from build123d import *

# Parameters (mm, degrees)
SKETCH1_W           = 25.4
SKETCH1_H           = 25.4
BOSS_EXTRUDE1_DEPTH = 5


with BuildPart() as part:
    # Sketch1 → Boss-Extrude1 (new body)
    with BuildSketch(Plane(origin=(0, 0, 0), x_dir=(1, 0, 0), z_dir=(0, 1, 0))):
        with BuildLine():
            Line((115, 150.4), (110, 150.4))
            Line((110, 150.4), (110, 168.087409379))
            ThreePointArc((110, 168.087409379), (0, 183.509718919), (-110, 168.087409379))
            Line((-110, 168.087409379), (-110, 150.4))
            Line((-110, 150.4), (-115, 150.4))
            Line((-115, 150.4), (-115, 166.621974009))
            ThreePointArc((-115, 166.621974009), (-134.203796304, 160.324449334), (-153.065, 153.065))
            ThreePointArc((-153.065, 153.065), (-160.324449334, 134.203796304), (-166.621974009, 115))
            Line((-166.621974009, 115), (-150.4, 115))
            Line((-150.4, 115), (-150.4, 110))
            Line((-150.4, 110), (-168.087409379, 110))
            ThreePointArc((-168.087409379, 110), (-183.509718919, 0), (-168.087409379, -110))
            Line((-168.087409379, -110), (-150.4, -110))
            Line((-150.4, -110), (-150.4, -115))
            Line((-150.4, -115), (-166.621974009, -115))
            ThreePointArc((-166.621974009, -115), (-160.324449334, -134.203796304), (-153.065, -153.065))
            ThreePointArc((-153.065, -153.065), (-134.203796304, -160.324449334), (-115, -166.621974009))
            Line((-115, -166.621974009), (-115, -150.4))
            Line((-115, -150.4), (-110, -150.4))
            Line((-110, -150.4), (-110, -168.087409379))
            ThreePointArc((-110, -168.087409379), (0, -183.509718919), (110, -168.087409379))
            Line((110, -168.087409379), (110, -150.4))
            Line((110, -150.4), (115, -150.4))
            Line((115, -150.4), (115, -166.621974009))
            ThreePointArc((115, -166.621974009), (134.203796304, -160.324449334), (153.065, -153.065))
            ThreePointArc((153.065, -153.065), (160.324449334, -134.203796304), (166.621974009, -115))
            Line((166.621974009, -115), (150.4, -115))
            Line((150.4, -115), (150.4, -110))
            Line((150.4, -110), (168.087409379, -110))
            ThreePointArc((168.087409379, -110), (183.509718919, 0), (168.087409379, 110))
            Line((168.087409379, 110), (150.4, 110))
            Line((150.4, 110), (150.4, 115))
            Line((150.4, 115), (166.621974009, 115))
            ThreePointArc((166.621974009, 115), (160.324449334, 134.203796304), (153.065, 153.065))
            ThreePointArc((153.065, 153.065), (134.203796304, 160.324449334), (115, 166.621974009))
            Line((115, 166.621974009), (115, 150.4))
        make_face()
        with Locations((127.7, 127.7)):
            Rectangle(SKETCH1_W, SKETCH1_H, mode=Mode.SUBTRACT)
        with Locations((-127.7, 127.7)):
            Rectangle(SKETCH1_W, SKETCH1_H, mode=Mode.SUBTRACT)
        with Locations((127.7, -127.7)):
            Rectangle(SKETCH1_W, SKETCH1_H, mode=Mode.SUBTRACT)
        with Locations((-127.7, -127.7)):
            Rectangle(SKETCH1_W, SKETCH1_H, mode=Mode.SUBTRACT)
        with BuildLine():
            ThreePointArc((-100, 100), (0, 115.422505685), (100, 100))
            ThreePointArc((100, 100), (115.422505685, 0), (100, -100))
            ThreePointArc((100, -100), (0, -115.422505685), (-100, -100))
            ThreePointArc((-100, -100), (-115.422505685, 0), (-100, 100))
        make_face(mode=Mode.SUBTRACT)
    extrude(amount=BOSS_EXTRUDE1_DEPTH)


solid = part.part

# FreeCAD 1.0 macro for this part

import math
import FreeCAD as App
import Part
import Sketcher

V = App.Vector

doc = App.newDocument("Part")
body = doc.addObject("PartDesign::Body", "Body")

sketch1 = body.newObject("Sketcher::SketchObject", "Sketch")
sketch1.AttachmentSupport = (doc.getObject("XZ_Plane"), [""])
sketch1.MapMode = "FlatFace"
sketch1.addGeometry([
    Part.LineSegment(V(115, -150, 0), V(110, -150, 0)),
    Part.LineSegment(V(110, -150, 0), V(110, -168, 0)),
    Part.ArcOfCircle(Part.Circle(V(0, 216, 0), V(0, 0, 1), 400), math.radians(-106), math.radians(-74)),
    Part.LineSegment(V(-110, -168, 0), V(-110, -150, 0)),
    Part.LineSegment(V(-110, -150, 0), V(-115, -150, 0)),
    Part.LineSegment(V(-115, -150, 0), V(-115, -167, 0)),
    Part.ArcOfCircle(Part.Circle(V(0, 216, 0), V(0, 0, 1), 400), math.radians(-112.5), math.radians(-106.71)),
    Part.ArcOfCircle(Part.Circle(V(216, 0, 0), V(0, 0, 1), 400), math.radians(-163.29), math.radians(-157.5)),
    Part.LineSegment(V(-167, -115, 0), V(-150, -115, 0)),
    Part.LineSegment(V(-150, -115, 0), V(-150, -110, 0)),
    Part.LineSegment(V(-150, -110, 0), V(-168, -110, 0)),
    Part.ArcOfCircle(Part.Circle(V(216, 0, 0), V(0, 0, 1), 400), math.radians(164), math.radians(196)),
    Part.LineSegment(V(-168, 110, 0), V(-150, 110, 0)),
    Part.LineSegment(V(-150, 110, 0), V(-150, 115, 0)),
    Part.LineSegment(V(-150, 115, 0), V(-167, 115, 0)),
    Part.ArcOfCircle(Part.Circle(V(216, 0, 0), V(0, 0, 1), 400), math.radians(157.5), math.radians(163.29)),
    Part.ArcOfCircle(Part.Circle(V(0, -216, 0), V(0, 0, 1), 400), math.radians(106.71), math.radians(112.5)),
    Part.LineSegment(V(-115, 167, 0), V(-115, 150, 0)),
    Part.LineSegment(V(-115, 150, 0), V(-110, 150, 0)),
    Part.LineSegment(V(-110, 150, 0), V(-110, 168, 0)),
    Part.ArcOfCircle(Part.Circle(V(0, -216, 0), V(0, 0, 1), 400), math.radians(74), math.radians(106)),
    Part.LineSegment(V(110, 168, 0), V(110, 150, 0)),
    Part.LineSegment(V(110, 150, 0), V(115, 150, 0)),
    Part.LineSegment(V(115, 150, 0), V(115, 167, 0)),
    Part.ArcOfCircle(Part.Circle(V(0, -216, 0), V(0, 0, 1), 400), math.radians(67.5), math.radians(73.29)),
    Part.ArcOfCircle(Part.Circle(V(-216, 0, 0), V(0, 0, 1), 400), math.radians(16.71), math.radians(22.5)),
    Part.LineSegment(V(167, 115, 0), V(150, 115, 0)),
    Part.LineSegment(V(150, 115, 0), V(150, 110, 0)),
    Part.LineSegment(V(150, 110, 0), V(168, 110, 0)),
    Part.ArcOfCircle(Part.Circle(V(-216, 0, 0), V(0, 0, 1), 400), math.radians(-16), math.radians(16)),
    Part.LineSegment(V(168, -110, 0), V(150, -110, 0)),
    Part.LineSegment(V(150, -110, 0), V(150, -115, 0)),
    Part.LineSegment(V(150, -115, 0), V(167, -115, 0)),
    Part.ArcOfCircle(Part.Circle(V(-216, 0, 0), V(0, 0, 1), 400), math.radians(-22.5), math.radians(-16.71)),
    Part.ArcOfCircle(Part.Circle(V(0, 216, 0), V(0, 0, 1), 400), math.radians(-73.29), math.radians(-67.5)),
    Part.LineSegment(V(115, -167, 0), V(115, -150, 0)),
    Part.LineSegment(V(-115, 140, 0), V(-140, 140, 0)),
    Part.LineSegment(V(-140, 140, 0), V(-140, 115, 0)),
    Part.LineSegment(V(-140, 115, 0), V(-115, 115, 0)),
    Part.LineSegment(V(-115, 115, 0), V(-115, 140, 0)),
    Part.LineSegment(V(140, 140, 0), V(115, 140, 0)),
    Part.LineSegment(V(115, 140, 0), V(115, 115, 0)),
    Part.LineSegment(V(115, 115, 0), V(140, 115, 0)),
    Part.LineSegment(V(140, 115, 0), V(140, 140, 0)),
    Part.LineSegment(V(-115, -115, 0), V(-140, -115, 0)),
    Part.LineSegment(V(-140, -115, 0), V(-140, -140, 0)),
    Part.LineSegment(V(-140, -140, 0), V(-115, -140, 0)),
    Part.LineSegment(V(-115, -140, 0), V(-115, -115, 0)),
    Part.ArcOfCircle(Part.Circle(V(216, 0, 0), V(0, 0, 1), 332), math.radians(162), math.radians(198)),
    Part.ArcOfCircle(Part.Circle(V(0, 216, 0), V(0, 0, 1), 332), math.radians(-108), math.radians(-72)),
    Part.ArcOfCircle(Part.Circle(V(-216, 0, 0), V(0, 0, 1), 332), math.radians(-18), math.radians(18)),
    Part.ArcOfCircle(Part.Circle(V(0, -216, 0), V(0, 0, 1), 332), math.radians(72), math.radians(108)),
    Part.LineSegment(V(140, -115, 0), V(115, -115, 0)),
    Part.LineSegment(V(115, -115, 0), V(115, -140, 0)),
    Part.LineSegment(V(115, -140, 0), V(140, -140, 0)),
    Part.LineSegment(V(140, -140, 0), V(140, -115, 0)),
], False)
sketch1.addConstraint([
    Sketcher.Constraint("Coincident", 0, 2, 1, 1),
    Sketcher.Constraint("Coincident", 1, 2, 2, 2),
    Sketcher.Constraint("Coincident", 2, 1, 3, 1),
    Sketcher.Constraint("Coincident", 3, 2, 4, 1),
    Sketcher.Constraint("Coincident", 4, 2, 5, 1),
    Sketcher.Constraint("Coincident", 5, 2, 6, 2),
    Sketcher.Constraint("Coincident", 6, 1, 7, 2),
    Sketcher.Constraint("Coincident", 7, 1, 8, 1),
    Sketcher.Constraint("Coincident", 8, 2, 9, 1),
    Sketcher.Constraint("Coincident", 9, 2, 10, 1),
    Sketcher.Constraint("Coincident", 10, 2, 11, 2),
    Sketcher.Constraint("Coincident", 11, 1, 12, 1),
    Sketcher.Constraint("Coincident", 12, 2, 13, 1),
    Sketcher.Constraint("Coincident", 13, 2, 14, 1),
    Sketcher.Constraint("Coincident", 14, 2, 15, 2),
    Sketcher.Constraint("Coincident", 15, 1, 16, 2),
    Sketcher.Constraint("Coincident", 16, 1, 17, 1),
    Sketcher.Constraint("Coincident", 17, 2, 18, 1),
    Sketcher.Constraint("Coincident", 18, 2, 19, 1),
    Sketcher.Constraint("Coincident", 19, 2, 20, 2),
    Sketcher.Constraint("Coincident", 20, 1, 21, 1),
    Sketcher.Constraint("Coincident", 21, 2, 22, 1),
    Sketcher.Constraint("Coincident", 22, 2, 23, 1),
    Sketcher.Constraint("Coincident", 23, 2, 24, 2),
    Sketcher.Constraint("Coincident", 24, 1, 25, 2),
    Sketcher.Constraint("Coincident", 25, 1, 26, 1),
    Sketcher.Constraint("Coincident", 26, 2, 27, 1),
    Sketcher.Constraint("Coincident", 27, 2, 28, 1),
    Sketcher.Constraint("Coincident", 28, 2, 29, 2),
    Sketcher.Constraint("Coincident", 29, 1, 30, 1),
    Sketcher.Constraint("Coincident", 30, 2, 31, 1),
    Sketcher.Constraint("Coincident", 31, 2, 32, 1),
    Sketcher.Constraint("Coincident", 32, 2, 33, 2),
    Sketcher.Constraint("Coincident", 33, 1, 34, 2),
    Sketcher.Constraint("Coincident", 34, 1, 35, 1),
    Sketcher.Constraint("Coincident", 35, 2, 0, 1),
    Sketcher.Constraint("Coincident", 36, 2, 37, 1),
    Sketcher.Constraint("Coincident", 37, 2, 38, 1),
    Sketcher.Constraint("Coincident", 38, 2, 39, 1),
    Sketcher.Constraint("Coincident", 39, 2, 36, 1),
    Sketcher.Constraint("Coincident", 40, 2, 41, 1),
    Sketcher.Constraint("Coincident", 41, 2, 42, 1),
    Sketcher.Constraint("Coincident", 42, 2, 43, 1),
    Sketcher.Constraint("Coincident", 43, 2, 40, 1),
    Sketcher.Constraint("Coincident", 44, 2, 45, 1),
    Sketcher.Constraint("Coincident", 45, 2, 46, 1),
    Sketcher.Constraint("Coincident", 46, 2, 47, 1),
    Sketcher.Constraint("Coincident", 47, 2, 44, 1),
    Sketcher.Constraint("Coincident", 48, 2, 49, 1),
    Sketcher.Constraint("Coincident", 49, 2, 50, 1),
    Sketcher.Constraint("Coincident", 50, 2, 51, 1),
    Sketcher.Constraint("Coincident", 51, 2, 48, 1),
    Sketcher.Constraint("Coincident", 52, 2, 53, 1),
    Sketcher.Constraint("Coincident", 53, 2, 54, 1),
    Sketcher.Constraint("Coincident", 54, 2, 55, 1),
    Sketcher.Constraint("Coincident", 55, 2, 52, 1),
    Sketcher.Constraint("Horizontal", 0),
    Sketcher.Constraint("Vertical", 1),
    Sketcher.Constraint("Vertical", 3),
    Sketcher.Constraint("Horizontal", 4),
    Sketcher.Constraint("Vertical", 5),
    Sketcher.Constraint("Horizontal", 8),
    Sketcher.Constraint("Vertical", 9),
    Sketcher.Constraint("Horizontal", 10),
    Sketcher.Constraint("Horizontal", 12),
    Sketcher.Constraint("Vertical", 13),
    Sketcher.Constraint("Horizontal", 14),
    Sketcher.Constraint("Vertical", 17),
    Sketcher.Constraint("Horizontal", 18),
    Sketcher.Constraint("Vertical", 19),
    Sketcher.Constraint("Vertical", 21),
    Sketcher.Constraint("Horizontal", 22),
    Sketcher.Constraint("Vertical", 23),
    Sketcher.Constraint("Horizontal", 26),
    Sketcher.Constraint("Vertical", 27),
    Sketcher.Constraint("Horizontal", 28),
    Sketcher.Constraint("Horizontal", 30),
    Sketcher.Constraint("Vertical", 31),
    Sketcher.Constraint("Horizontal", 32),
    Sketcher.Constraint("Vertical", 35),
    Sketcher.Constraint("Horizontal", 36),
    Sketcher.Constraint("Vertical", 37),
    Sketcher.Constraint("Horizontal", 38),
    Sketcher.Constraint("Vertical", 39),
    Sketcher.Constraint("Horizontal", 40),
    Sketcher.Constraint("Vertical", 41),
    Sketcher.Constraint("Horizontal", 42),
    Sketcher.Constraint("Vertical", 43),
    Sketcher.Constraint("Horizontal", 44),
    Sketcher.Constraint("Vertical", 45),
    Sketcher.Constraint("Horizontal", 46),
    Sketcher.Constraint("Vertical", 47),
    Sketcher.Constraint("Horizontal", 52),
    Sketcher.Constraint("Vertical", 53),
    Sketcher.Constraint("Horizontal", 54),
    Sketcher.Constraint("Vertical", 55),
    Sketcher.Constraint("Coincident", 6, 3, 2, 3),
    Sketcher.Constraint("Coincident", 11, 3, 7, 3),
    Sketcher.Constraint("Coincident", 15, 3, 7, 3),
    Sketcher.Constraint("Coincident", 20, 3, 16, 3),
    Sketcher.Constraint("Coincident", 24, 3, 16, 3),
    Sketcher.Constraint("Coincident", 29, 3, 25, 3),
    Sketcher.Constraint("Coincident", 33, 3, 25, 3),
    Sketcher.Constraint("Coincident", 34, 3, 2, 3),
    Sketcher.Constraint("Coincident", 48, 3, 7, 3),
    Sketcher.Constraint("Coincident", 49, 3, 2, 3),
    Sketcher.Constraint("Coincident", 50, 3, 25, 3),
    Sketcher.Constraint("Coincident", 51, 3, 16, 3),
    Sketcher.Constraint("Equal", 2, 6),
    Sketcher.Constraint("Equal", 6, 7),
    Sketcher.Constraint("Equal", 7, 11),
    Sketcher.Constraint("Equal", 11, 15),
    Sketcher.Constraint("Equal", 15, 16),
    Sketcher.Constraint("Equal", 16, 20),
    Sketcher.Constraint("Equal", 20, 24),
    Sketcher.Constraint("Equal", 24, 25),
    Sketcher.Constraint("Equal", 25, 29),
    Sketcher.Constraint("Equal", 29, 33),
    Sketcher.Constraint("Equal", 33, 34),
    Sketcher.Constraint("Equal", 48, 49),
    Sketcher.Constraint("Equal", 49, 50),
    Sketcher.Constraint("Equal", 50, 51),
    Sketcher.Constraint("Symmetric", 2, 3, 16, 3, -1, 1),
    Sketcher.Constraint("Symmetric", 7, 3, 25, 3, -1, 1),
    Sketcher.Constraint("Symmetric", 0, 2, 18, 2, -1, 1),
    Sketcher.Constraint("Symmetric", 3, 2, 21, 2, -1, 1),
    Sketcher.Constraint("Symmetric", 8, 2, 26, 2, -1, 1),
    Sketcher.Constraint("Symmetric", 12, 2, 30, 2, -1, 1),
    Sketcher.Constraint("Symmetric", 42, 2, 44, 2, -1, 1),
    Sketcher.Constraint("Symmetric", 40, 2, 46, 2, -1, 1),
    Sketcher.Constraint("Symmetric", 38, 2, 52, 2, -1, 1),
    Sketcher.Constraint("Symmetric", 36, 2, 54, 2, -1, 1),
    Sketcher.Constraint("Symmetric", 0, 2, 3, 2, -2),
    Sketcher.Constraint("Symmetric", 13, 2, 26, 2, -2),
    Sketcher.Constraint("Symmetric", 39, 2, 40, 2, -2),
    Sketcher.Constraint("Symmetric", 37, 2, 42, 2, -2),
    Sketcher.Constraint("PointOnObject", 2, 3, -2),
    Sketcher.Constraint("PointOnObject", 7, 3, -1),
    Sketcher.Constraint("Horizontal", 16, 1, 23, 2),
    Sketcher.Constraint("Horizontal", 12, 2, 27, 2),
    Sketcher.Constraint("Horizontal", 8, 2, 31, 2),
    Sketcher.Constraint("Horizontal", 5, 2, 34, 1),
    Sketcher.Constraint("Horizontal", 26, 2, 37, 2),
    Sketcher.Constraint("Vertical", 17, 2, 38, 2),
    Sketcher.Constraint("Vertical", 35, 2, 40, 2),
    Sketcher.Constraint("Equal", 10, 12),
    Sketcher.Constraint("Equal", 30, 1),
    Sketcher.Constraint("Equal", 32, 5),
    Sketcher.Constraint("Equal", 22, 9),
    Sketcher.Constraint("Equal", 54, 37),
    Sketcher.Constraint("Radius", 2, 400.0),
    Sketcher.Constraint("DistanceX", 0, 2, 0, 1, 5.0),
    Sketcher.Constraint("DistanceX", 36, 2, 36, 1, 25.4),
    Sketcher.Constraint("DistanceX", -1, 1, 0, 2, 110.0),
    Sketcher.Constraint("DistanceX", 48, 2, -1, 1, 100.0),
    Sketcher.Constraint("DistanceY", 49, 2, -1, 1, 100.0),
    Sketcher.Constraint("DistanceY", 0, 2, -1, 1, 150.4),
    Sketcher.Constraint("Radius", 48, 331.912787),
])
pad1 = body.newObject("PartDesign::Pad", "Pad")
pad1.Profile = sketch1
pad1.Length = 5
pad1.Reversed = True

doc.recompute()
